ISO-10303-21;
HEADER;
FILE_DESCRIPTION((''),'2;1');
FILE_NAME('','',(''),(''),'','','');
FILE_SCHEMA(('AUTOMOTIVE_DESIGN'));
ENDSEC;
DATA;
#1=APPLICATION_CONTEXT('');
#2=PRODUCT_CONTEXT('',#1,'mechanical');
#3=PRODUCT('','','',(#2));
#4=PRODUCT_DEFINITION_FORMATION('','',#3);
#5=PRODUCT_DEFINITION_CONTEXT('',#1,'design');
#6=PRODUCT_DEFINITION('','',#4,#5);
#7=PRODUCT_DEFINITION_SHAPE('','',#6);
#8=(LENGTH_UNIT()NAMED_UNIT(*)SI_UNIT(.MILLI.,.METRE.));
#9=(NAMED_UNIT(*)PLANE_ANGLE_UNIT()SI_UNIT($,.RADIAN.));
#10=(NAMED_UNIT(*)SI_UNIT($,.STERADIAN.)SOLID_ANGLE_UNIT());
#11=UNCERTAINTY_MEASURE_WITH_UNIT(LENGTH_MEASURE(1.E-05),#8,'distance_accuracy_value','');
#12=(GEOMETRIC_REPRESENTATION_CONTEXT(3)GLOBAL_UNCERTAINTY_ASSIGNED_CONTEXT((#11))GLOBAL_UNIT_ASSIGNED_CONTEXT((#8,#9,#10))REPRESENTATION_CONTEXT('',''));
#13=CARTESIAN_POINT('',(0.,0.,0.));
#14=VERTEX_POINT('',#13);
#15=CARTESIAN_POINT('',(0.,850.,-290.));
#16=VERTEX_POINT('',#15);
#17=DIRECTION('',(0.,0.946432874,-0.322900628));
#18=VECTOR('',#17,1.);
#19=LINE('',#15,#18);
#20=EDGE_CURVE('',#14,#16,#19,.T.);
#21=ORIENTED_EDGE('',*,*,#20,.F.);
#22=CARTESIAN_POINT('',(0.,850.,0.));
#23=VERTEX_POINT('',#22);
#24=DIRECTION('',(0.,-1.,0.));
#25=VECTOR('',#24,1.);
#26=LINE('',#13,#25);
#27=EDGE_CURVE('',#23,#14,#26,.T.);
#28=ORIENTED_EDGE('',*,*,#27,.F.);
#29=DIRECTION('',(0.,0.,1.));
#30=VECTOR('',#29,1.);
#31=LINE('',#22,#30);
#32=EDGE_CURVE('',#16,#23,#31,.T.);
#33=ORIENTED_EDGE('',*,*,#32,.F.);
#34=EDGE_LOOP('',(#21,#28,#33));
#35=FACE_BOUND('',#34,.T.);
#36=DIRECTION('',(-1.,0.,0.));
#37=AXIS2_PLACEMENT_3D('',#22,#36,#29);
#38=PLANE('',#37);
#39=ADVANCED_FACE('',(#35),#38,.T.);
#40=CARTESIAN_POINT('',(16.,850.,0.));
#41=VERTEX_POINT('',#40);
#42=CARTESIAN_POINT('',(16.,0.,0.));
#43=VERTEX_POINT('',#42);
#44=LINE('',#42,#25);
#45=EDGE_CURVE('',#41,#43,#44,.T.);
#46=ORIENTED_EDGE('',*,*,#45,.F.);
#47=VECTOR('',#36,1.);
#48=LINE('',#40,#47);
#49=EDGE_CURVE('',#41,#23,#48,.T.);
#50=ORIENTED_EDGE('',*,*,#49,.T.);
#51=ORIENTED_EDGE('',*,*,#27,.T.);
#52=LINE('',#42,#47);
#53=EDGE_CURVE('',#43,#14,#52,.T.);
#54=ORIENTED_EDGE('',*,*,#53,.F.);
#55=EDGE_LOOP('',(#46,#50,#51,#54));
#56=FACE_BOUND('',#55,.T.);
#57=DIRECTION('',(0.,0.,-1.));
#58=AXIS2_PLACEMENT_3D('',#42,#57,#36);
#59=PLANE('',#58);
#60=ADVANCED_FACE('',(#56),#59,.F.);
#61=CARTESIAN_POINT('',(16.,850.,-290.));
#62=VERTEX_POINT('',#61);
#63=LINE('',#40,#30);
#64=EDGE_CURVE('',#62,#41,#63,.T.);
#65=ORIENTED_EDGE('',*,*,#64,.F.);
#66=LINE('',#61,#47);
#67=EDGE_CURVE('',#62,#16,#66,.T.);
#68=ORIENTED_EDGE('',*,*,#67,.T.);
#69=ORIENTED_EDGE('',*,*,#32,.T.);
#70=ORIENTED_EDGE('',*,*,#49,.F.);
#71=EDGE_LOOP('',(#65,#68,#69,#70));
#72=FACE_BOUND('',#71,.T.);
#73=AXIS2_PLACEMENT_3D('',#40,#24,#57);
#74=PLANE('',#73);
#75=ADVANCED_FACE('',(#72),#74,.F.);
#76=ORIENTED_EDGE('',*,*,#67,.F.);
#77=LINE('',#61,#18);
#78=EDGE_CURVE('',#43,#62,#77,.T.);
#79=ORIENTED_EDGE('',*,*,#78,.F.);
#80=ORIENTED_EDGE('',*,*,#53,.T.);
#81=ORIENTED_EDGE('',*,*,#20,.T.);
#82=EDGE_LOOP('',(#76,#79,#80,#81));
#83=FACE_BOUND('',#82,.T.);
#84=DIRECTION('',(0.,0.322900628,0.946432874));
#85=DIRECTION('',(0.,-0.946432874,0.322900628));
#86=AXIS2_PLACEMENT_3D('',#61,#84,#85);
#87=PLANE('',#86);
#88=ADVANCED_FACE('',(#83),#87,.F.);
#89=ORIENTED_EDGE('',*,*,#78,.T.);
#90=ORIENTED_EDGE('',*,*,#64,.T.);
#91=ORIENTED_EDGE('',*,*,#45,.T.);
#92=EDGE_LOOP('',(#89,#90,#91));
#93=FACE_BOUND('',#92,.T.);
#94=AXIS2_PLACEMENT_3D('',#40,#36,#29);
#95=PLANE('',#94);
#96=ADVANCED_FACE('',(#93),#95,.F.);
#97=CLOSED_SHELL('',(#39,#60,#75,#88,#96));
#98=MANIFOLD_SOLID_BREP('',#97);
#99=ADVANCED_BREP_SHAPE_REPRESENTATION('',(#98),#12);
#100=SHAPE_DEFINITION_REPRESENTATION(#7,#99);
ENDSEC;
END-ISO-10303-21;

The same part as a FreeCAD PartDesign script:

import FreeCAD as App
import Part
import Sketcher
Q = App.Units.Quantity

doc = App.newDocument("Part")
body = doc.addObject("PartDesign::Body", "Body")

# Sketch on YZ plane
sketch1 = body.newObject("Sketcher::SketchObject", "Sketch")
sketch1.AttachmentSupport = (doc.getObject("YZ_Plane"), [""])
sketch1.MapMode = "FlatFace"
sketch1.addGeometry([
    Part.LineSegment(App.Vector(0, 0, 0), App.Vector(850, -290, 0)),
    Part.LineSegment(App.Vector(850, -290, 0), App.Vector(850, 0, 0)),
    Part.LineSegment(App.Vector(850, 0, 0), App.Vector(0, 0, 0)),
], False)
sketch1.addConstraint([
    Sketcher.Constraint("Coincident", 0, 2, 1, 1),
    Sketcher.Constraint("Coincident", 1, 2, 2, 1),
    Sketcher.Constraint("Coincident", 2, 2, 0, 1),
    Sketcher.Constraint("Vertical", 1),
    Sketcher.Constraint("Horizontal", 2),
    Sketcher.Constraint("Coincident", 2, 2, -1, 1),
    Sketcher.Constraint("DistanceX", 2, 2, 2, 1, Q("850 mm")),
    Sketcher.Constraint("DistanceY", 1, 1, 1, 2, Q("290 mm")),
])
pad1 = body.newObject("PartDesign::Pad", "Pad")
pad1.Profile = sketch1
pad1.Length = 16

doc.recompute()
